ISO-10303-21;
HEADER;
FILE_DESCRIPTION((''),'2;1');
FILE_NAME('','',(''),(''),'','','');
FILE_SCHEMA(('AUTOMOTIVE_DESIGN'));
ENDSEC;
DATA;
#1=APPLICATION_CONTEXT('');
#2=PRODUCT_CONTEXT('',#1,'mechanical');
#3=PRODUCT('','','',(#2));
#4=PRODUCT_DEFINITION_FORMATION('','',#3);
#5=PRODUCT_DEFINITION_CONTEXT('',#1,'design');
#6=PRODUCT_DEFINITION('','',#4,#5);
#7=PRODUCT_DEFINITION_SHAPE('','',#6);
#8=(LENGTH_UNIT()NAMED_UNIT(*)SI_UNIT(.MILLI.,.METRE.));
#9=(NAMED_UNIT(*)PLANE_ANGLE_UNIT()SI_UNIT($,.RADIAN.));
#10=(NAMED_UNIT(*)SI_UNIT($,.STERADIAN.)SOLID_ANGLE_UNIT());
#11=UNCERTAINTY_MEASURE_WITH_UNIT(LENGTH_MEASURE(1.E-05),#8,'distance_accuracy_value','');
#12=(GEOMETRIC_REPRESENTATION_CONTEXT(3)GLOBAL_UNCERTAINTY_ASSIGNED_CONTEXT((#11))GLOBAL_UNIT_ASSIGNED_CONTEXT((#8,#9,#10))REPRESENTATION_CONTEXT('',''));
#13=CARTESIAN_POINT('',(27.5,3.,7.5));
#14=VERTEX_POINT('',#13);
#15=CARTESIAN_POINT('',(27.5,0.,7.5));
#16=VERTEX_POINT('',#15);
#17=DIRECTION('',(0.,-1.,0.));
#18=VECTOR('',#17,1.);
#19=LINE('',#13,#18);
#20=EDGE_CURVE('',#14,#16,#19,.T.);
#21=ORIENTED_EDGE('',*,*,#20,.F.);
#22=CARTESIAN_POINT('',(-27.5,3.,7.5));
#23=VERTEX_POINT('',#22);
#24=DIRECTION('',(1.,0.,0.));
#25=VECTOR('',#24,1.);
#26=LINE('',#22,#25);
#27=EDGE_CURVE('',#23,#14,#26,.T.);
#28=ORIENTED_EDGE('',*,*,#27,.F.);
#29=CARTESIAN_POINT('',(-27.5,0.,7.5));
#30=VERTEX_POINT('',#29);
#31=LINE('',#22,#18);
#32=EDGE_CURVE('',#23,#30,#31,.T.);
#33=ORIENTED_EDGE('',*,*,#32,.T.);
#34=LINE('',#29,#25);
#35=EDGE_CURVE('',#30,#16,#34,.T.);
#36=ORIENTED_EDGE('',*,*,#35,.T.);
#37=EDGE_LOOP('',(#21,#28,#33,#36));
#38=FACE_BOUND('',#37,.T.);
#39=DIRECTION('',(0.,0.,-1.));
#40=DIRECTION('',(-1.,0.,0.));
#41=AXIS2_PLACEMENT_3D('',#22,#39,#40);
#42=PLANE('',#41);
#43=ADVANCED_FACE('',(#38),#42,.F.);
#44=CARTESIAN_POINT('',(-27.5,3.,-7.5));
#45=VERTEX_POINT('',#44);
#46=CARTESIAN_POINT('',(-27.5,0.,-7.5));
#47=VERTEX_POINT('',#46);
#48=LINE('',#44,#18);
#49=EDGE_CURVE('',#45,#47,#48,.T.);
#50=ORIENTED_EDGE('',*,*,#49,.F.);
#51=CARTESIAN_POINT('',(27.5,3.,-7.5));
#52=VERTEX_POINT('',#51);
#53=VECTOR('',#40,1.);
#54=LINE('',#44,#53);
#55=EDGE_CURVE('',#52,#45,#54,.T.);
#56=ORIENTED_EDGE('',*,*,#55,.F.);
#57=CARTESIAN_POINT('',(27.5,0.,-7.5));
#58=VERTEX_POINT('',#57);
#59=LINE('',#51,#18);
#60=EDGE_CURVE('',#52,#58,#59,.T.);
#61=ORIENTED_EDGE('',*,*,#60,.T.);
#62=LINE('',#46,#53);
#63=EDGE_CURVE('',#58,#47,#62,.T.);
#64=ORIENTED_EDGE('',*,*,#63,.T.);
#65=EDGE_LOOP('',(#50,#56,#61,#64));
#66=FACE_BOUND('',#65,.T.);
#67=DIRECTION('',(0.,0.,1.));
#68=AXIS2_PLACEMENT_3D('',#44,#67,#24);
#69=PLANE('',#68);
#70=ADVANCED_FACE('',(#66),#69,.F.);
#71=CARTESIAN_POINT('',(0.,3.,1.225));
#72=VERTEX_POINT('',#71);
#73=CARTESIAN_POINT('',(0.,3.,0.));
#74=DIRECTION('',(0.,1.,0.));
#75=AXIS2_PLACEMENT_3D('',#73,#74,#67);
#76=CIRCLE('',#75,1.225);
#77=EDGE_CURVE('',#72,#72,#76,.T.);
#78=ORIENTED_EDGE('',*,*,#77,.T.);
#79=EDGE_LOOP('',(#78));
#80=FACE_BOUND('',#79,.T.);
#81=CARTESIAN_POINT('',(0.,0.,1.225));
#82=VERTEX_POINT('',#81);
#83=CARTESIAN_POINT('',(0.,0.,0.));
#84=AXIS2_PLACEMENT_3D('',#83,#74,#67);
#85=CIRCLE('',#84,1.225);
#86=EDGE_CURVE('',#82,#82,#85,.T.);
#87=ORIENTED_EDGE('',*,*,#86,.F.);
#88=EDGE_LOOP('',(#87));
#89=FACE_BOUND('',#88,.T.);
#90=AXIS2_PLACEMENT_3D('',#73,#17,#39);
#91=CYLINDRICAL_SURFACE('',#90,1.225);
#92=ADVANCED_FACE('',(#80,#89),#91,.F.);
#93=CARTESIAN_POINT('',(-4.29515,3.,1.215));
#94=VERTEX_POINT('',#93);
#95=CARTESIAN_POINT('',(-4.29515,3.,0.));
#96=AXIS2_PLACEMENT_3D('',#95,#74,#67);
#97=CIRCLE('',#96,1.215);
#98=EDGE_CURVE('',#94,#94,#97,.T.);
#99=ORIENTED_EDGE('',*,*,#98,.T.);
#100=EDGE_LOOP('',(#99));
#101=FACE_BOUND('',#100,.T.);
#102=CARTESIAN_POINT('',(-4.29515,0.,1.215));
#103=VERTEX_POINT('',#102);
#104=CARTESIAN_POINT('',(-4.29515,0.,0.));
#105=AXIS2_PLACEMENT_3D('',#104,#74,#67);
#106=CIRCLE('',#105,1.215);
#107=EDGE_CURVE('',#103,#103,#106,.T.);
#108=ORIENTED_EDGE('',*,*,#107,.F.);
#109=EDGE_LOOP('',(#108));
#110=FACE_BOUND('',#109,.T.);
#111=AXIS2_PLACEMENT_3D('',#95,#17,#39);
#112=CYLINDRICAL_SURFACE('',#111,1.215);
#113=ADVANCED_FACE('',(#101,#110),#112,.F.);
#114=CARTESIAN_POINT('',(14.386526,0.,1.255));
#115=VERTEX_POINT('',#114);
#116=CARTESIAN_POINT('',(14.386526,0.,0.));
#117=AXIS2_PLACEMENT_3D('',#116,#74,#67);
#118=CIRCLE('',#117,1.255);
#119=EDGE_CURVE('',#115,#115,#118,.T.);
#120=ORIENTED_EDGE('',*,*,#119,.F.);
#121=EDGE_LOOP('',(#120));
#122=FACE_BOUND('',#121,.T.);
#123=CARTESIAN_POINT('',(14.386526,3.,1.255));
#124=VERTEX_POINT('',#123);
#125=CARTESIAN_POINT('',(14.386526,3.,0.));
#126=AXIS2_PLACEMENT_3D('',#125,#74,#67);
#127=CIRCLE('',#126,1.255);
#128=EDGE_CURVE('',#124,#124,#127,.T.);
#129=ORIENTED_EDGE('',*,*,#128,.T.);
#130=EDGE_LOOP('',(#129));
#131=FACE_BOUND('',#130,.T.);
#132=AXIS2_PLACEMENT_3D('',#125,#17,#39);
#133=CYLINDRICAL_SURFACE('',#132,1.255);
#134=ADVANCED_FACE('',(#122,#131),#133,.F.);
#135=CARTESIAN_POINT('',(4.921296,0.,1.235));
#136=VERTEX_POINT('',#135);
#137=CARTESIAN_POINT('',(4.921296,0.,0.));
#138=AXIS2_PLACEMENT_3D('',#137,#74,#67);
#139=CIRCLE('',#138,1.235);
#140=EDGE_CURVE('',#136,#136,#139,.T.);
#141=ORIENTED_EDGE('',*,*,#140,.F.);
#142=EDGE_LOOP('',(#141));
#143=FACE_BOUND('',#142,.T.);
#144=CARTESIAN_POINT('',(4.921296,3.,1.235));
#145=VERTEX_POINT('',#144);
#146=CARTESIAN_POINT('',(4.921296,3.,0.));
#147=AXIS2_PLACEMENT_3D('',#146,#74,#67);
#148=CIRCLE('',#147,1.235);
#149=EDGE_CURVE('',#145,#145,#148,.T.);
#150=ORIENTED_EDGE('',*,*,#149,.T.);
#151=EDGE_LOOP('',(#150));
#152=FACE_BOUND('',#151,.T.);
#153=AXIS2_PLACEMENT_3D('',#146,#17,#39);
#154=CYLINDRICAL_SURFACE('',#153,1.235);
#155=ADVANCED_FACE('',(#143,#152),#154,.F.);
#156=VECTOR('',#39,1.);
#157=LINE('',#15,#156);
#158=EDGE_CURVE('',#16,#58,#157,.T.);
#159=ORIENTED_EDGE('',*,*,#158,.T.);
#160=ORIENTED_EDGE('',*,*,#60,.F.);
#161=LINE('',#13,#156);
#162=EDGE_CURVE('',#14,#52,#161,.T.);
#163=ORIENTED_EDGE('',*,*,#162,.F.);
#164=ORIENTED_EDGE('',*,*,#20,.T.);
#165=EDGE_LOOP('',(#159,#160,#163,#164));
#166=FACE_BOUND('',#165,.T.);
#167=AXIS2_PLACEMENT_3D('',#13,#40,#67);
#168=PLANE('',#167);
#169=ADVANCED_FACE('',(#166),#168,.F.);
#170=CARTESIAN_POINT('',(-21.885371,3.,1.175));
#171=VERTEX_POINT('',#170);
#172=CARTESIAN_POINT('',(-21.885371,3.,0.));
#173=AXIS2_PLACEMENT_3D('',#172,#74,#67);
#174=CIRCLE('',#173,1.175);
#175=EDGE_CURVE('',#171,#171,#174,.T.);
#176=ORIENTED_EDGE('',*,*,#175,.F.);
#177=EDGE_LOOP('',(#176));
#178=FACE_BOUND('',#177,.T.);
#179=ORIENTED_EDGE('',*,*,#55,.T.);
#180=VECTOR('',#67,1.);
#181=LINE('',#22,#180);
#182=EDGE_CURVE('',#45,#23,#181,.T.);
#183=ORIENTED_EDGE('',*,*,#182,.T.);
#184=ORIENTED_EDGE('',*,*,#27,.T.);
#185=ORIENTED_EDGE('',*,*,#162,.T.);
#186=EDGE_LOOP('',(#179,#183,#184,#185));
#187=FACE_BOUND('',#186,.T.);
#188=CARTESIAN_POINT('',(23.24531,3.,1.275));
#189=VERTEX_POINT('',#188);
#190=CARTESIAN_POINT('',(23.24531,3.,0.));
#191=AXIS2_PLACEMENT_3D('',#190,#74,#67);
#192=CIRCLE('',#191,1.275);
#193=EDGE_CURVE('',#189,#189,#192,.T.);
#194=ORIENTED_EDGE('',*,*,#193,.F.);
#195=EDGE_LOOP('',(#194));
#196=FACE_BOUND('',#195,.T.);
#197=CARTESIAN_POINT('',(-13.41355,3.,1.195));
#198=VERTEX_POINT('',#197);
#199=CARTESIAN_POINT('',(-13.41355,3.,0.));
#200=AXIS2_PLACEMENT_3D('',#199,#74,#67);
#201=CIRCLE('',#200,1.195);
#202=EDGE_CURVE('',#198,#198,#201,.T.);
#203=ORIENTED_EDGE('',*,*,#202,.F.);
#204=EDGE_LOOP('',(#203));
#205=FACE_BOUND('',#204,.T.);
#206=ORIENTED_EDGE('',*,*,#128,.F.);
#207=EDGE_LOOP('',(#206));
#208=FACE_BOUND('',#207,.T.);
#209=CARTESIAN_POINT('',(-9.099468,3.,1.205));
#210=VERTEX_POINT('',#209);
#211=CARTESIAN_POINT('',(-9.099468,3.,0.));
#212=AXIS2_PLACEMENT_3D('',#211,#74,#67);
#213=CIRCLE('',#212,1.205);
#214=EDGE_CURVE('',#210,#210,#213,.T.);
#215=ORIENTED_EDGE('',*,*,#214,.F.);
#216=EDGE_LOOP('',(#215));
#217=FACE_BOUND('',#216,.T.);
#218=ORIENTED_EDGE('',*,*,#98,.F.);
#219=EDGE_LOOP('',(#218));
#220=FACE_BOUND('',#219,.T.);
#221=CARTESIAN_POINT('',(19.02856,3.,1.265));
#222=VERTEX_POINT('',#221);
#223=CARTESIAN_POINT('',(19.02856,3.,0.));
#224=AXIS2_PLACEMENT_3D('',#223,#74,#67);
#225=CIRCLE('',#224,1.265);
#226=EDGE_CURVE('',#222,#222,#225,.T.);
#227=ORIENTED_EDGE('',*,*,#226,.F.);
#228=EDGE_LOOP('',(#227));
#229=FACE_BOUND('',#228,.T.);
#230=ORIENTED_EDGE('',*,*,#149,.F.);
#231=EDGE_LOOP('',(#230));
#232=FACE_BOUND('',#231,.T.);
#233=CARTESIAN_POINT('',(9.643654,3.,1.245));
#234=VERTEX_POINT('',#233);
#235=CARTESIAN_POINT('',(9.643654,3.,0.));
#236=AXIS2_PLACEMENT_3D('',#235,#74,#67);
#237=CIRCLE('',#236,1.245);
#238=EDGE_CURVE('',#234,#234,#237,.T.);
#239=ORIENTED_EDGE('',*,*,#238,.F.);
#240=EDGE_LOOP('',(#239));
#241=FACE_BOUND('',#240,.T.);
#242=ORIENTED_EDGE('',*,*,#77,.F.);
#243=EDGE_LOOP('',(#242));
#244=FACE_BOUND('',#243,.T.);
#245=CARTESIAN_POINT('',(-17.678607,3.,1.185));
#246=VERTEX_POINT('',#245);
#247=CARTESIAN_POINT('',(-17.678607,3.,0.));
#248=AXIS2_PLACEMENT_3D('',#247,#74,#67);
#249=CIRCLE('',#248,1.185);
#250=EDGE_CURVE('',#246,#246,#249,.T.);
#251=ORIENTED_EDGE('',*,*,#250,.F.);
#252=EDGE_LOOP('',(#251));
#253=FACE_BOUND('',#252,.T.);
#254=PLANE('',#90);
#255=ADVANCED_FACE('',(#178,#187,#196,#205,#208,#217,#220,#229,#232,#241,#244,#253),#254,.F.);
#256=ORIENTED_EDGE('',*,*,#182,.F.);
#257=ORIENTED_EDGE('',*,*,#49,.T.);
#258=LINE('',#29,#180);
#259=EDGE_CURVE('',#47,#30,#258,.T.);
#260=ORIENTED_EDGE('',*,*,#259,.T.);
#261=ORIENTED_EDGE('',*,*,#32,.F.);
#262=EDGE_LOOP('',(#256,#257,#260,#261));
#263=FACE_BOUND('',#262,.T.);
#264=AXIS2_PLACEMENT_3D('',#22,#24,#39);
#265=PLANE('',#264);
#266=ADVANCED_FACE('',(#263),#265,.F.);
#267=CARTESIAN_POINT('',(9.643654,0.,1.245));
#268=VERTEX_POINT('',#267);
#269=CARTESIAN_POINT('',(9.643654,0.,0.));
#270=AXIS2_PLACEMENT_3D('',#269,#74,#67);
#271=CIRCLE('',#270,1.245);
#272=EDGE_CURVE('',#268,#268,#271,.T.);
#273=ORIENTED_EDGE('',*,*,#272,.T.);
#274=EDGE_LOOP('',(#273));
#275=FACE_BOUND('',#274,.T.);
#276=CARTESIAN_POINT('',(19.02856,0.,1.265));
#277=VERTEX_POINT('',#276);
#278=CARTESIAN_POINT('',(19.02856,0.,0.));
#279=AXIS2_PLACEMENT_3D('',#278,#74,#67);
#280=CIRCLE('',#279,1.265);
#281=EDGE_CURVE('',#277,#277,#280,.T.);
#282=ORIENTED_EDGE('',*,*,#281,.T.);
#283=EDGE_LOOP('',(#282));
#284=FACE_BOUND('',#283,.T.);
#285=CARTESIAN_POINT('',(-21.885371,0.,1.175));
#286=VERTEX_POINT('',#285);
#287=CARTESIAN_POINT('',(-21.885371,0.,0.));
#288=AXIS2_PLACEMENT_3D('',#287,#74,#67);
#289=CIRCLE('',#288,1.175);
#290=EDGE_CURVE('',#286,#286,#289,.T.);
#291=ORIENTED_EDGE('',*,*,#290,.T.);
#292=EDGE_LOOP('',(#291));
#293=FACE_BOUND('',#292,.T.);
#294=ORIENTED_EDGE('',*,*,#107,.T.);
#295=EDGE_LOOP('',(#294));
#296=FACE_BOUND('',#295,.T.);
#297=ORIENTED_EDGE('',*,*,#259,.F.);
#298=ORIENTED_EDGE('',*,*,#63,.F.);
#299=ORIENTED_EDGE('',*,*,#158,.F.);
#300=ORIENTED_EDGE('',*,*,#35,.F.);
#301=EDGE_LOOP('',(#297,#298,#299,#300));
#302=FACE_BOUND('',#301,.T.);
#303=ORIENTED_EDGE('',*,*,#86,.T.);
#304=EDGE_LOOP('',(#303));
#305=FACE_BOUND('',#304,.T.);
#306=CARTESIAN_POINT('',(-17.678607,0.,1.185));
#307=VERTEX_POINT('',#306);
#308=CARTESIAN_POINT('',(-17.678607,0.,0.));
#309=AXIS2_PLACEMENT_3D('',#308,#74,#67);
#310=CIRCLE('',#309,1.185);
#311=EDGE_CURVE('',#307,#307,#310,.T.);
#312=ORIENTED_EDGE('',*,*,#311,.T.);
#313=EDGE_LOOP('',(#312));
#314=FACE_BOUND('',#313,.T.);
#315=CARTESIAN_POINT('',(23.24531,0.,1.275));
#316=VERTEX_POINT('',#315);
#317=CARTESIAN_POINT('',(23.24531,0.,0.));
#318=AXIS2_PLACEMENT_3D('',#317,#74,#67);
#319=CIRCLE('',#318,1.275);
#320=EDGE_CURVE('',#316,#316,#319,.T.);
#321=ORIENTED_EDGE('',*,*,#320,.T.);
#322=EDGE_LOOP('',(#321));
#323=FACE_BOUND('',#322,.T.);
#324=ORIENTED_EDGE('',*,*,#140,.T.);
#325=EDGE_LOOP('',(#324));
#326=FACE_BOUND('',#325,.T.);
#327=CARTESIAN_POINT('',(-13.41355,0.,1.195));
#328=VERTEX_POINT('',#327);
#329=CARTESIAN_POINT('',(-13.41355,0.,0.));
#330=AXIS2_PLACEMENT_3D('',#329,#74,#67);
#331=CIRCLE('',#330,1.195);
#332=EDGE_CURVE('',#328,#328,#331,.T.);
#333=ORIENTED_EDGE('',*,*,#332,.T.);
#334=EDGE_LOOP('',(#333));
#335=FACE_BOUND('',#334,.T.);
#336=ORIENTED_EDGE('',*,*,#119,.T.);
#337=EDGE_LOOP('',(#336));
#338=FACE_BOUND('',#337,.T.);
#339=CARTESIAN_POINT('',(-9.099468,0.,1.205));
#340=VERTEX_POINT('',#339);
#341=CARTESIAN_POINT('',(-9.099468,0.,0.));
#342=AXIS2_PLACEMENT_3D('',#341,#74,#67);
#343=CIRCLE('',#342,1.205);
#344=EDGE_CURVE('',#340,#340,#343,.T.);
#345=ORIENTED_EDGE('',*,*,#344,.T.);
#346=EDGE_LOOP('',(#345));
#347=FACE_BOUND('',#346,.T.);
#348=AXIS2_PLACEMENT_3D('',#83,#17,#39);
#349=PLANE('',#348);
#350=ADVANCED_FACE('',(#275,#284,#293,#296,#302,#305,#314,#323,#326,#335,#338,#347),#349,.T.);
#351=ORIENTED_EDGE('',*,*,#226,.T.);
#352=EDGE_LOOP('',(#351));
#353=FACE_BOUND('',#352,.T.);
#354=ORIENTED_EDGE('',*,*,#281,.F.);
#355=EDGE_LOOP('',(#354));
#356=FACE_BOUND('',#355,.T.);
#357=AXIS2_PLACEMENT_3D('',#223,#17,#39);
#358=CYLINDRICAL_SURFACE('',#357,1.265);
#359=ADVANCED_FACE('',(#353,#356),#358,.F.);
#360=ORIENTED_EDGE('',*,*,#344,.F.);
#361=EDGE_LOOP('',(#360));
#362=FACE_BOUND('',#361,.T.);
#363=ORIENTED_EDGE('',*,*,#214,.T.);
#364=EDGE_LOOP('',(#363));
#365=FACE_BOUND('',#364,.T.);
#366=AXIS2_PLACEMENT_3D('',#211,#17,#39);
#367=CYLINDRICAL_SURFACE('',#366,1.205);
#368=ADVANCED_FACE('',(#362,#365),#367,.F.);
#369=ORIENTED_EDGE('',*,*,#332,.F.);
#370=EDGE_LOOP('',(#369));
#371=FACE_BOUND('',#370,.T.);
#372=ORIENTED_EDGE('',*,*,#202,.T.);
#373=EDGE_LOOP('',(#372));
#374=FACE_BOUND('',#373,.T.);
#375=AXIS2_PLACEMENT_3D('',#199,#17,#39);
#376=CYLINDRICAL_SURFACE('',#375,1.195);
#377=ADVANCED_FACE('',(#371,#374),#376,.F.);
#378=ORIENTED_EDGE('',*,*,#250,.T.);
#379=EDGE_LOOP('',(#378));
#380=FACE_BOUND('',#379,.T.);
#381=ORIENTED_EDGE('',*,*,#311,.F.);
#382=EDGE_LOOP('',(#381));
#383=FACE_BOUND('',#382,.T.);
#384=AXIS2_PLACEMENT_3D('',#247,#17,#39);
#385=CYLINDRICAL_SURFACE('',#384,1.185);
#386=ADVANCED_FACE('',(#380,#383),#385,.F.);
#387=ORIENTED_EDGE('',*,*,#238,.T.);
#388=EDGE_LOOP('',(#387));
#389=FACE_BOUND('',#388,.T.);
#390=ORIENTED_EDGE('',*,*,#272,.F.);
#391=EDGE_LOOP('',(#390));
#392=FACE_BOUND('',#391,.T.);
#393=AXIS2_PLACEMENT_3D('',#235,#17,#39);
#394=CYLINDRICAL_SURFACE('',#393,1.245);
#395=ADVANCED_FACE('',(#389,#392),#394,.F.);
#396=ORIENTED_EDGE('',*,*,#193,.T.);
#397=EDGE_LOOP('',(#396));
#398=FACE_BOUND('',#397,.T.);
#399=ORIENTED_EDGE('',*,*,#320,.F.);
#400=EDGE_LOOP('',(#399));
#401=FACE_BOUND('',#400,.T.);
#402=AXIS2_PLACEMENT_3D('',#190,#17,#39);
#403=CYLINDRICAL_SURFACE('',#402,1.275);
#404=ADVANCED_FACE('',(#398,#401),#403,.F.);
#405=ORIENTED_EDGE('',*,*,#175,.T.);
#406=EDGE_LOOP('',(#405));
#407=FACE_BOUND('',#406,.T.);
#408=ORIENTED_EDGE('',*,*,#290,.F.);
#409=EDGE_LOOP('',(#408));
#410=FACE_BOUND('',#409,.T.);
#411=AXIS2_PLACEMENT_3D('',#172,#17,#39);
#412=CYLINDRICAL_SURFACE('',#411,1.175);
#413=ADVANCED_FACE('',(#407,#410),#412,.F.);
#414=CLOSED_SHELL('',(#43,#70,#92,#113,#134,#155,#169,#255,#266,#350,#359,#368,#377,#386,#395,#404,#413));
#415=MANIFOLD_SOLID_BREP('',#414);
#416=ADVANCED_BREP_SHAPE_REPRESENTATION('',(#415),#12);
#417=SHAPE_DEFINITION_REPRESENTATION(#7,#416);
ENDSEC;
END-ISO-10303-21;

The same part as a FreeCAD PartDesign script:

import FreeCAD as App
import Part
import Sketcher

V = App.Vector
Q = App.Units.Quantity

doc = App.newDocument("Part")
body = doc.addObject("PartDesign::Body", "Body")

# Sketch on XZ plane
sketch1 = body.newObject("Sketcher::SketchObject", "Sketch")
sketch1.AttachmentSupport = (doc.getObject("XZ_Plane"), [""])
sketch1.MapMode = "FlatFace"
sketch1.addGeometry([
    Part.LineSegment(V(-27.5, -7.5, 0), V(-27.5, 7.5, 0)),  # 0
    Part.LineSegment(V(-27.5, 7.5, 0), V(27.5, 7.5, 0)),  # 1
    Part.LineSegment(V(27.5, 7.5, 0), V(27.5, -7.5, 0)),  # 2
    Part.LineSegment(V(27.5, -7.5, 0), V(-27.5, -7.5, 0)),  # 3
    Part.Circle(V(-21.885371, 0, 0), V(0, 0, 1), 1.175),  # 4
    Part.Circle(V(-17.678607, 0, 0), V(0, 0, 1), 1.185),  # 5
    Part.Circle(V(-13.41355, 0, 0), V(0, 0, 1), 1.195),  # 6
    Part.Circle(V(-9.099468, 0, 0), V(0, 0, 1), 1.205),  # 7
    Part.Circle(V(-4.29515, 0, 0), V(0, 0, 1), 1.215),  # 8
    Part.Circle(V(0, 0, 0), V(0, 0, 1), 1.225),  # 9
    Part.Circle(V(4.921296, 0, 0), V(0, 0, 1), 1.235),  # 10
    Part.Circle(V(9.643654, 0, 0), V(0, 0, 1), 1.245),  # 11
    Part.Circle(V(14.386526, 0, 0), V(0, 0, 1), 1.255),  # 12
    Part.Circle(V(19.02856, 0, 0), V(0, 0, 1), 1.265),  # 13
    Part.Circle(V(23.24531, 0, 0), V(0, 0, 1), 1.275),  # 14
], False)
sketch1.addConstraint([
    Sketcher.Constraint("Coincident", 0, 2, 1, 1),
    Sketcher.Constraint("Coincident", 1, 2, 2, 1),
    Sketcher.Constraint("Coincident", 2, 2, 3, 1),
    Sketcher.Constraint("Coincident", 3, 2, 0, 1),
    Sketcher.Constraint("Vertical", 0),
    Sketcher.Constraint("Horizontal", 1),
    Sketcher.Constraint("Vertical", 2),
    Sketcher.Constraint("Horizontal", 3),
    Sketcher.Constraint("Coincident", 9, 3, -1, 1),
    Sketcher.Constraint("Symmetric", 0, 2, 2, 2, -1, 1),
    Sketcher.Constraint("PointOnObject", 4, 3, -1),
    Sketcher.Constraint("PointOnObject", 5, 3, -1),
    Sketcher.Constraint("PointOnObject", 6, 3, -1),
    Sketcher.Constraint("PointOnObject", 7, 3, -1),
    Sketcher.Constraint("PointOnObject", 8, 3, -1),
    Sketcher.Constraint("PointOnObject", 10, 3, -1),
    Sketcher.Constraint("PointOnObject", 11, 3, -1),
    Sketcher.Constraint("PointOnObject", 12, 3, -1),
    Sketcher.Constraint("PointOnObject", 13, 3, -1),
    Sketcher.Constraint("PointOnObject", 14, 3, -1),
    Sketcher.Constraint("Diameter", 4, Q("2.35 mm")),
    Sketcher.Constraint("Diameter", 5, Q("2.37 mm")),
    Sketcher.Constraint("Diameter", 6, Q("2.39 mm")),
    Sketcher.Constraint("Diameter", 7, Q("2.41 mm")),
    Sketcher.Constraint("Diameter", 8, Q("2.43 mm")),
    Sketcher.Constraint("Diameter", 9, Q("2.45 mm")),
    Sketcher.Constraint("Diameter", 10, Q("2.47 mm")),
    Sketcher.Constraint("Diameter", 11, Q("2.49 mm")),
    Sketcher.Constraint("Diameter", 12, Q("2.51 mm")),
    Sketcher.Constraint("Diameter", 13, Q("2.53 mm")),
    Sketcher.Constraint("Diameter", 14, Q("2.55 mm")),
    Sketcher.Constraint("DistanceX", 1, 1, 1, 2, Q("55 mm")),
    Sketcher.Constraint("DistanceY", 0, 1, 0, 2, Q("15 mm")),
    Sketcher.Constraint("DistanceX", 6, 3, 8, 3, Q("9.118399 mm")),
    Sketcher.Constraint("DistanceX", 4, 3, -1, 1, Q("21.885371 mm")),
    Sketcher.Constraint("DistanceX", 6, 3, -1, 1, Q("13.41355 mm")),
    Sketcher.Constraint("DistanceX", 7, 3, -1, 1, Q("9.099468 mm")),
    Sketcher.Constraint("DistanceX", -1, 1, 13, 3, Q("19.02856 mm")),
    Sketcher.Constraint("DistanceX", -1, 1, 14, 3, Q("23.24531 mm")),
    Sketcher.Constraint("DistanceX", 5, 3, 7, 3, Q("8.579139 mm")),
    Sketcher.Constraint("DistanceX", 10, 3, 11, 3, Q("4.722358 mm")),
    Sketcher.Constraint("DistanceX", 11, 3, 12, 3, Q("4.742872 mm")),
    Sketcher.Constraint("DistanceX", -1, 1, 10, 3, Q("4.921296 mm")),
])
pad1 = body.newObject("PartDesign::Pad", "Pad")
pad1.Profile = sketch1
pad1.Length = 3
pad1.Reversed = True

doc.recompute()
